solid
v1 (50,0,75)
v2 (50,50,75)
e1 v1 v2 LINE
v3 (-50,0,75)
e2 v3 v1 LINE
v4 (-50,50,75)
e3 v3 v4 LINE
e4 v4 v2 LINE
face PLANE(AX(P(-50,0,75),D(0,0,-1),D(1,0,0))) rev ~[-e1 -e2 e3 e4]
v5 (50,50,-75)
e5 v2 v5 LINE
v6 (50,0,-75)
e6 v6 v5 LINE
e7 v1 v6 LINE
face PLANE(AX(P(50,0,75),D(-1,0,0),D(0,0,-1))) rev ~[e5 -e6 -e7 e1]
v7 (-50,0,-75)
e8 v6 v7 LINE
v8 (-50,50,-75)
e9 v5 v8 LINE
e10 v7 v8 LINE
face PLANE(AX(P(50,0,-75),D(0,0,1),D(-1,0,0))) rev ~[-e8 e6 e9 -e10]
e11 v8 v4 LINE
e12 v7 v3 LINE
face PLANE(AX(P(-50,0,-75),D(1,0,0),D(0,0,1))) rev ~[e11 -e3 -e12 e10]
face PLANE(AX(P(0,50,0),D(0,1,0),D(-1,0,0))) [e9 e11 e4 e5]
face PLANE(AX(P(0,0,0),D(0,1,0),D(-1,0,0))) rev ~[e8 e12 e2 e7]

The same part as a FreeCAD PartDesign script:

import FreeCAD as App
import Part
import Sketcher

V = App.Vector
Q = App.Units.Quantity

doc = App.newDocument("Part")
body = doc.addObject("PartDesign::Body", "Body")

# Sketch on XZ plane
sketch1 = body.newObject("Sketcher::SketchObject", "Sketch")
sketch1.AttachmentSupport = (doc.getObject("XZ_Plane"), [""])
sketch1.MapMode = "FlatFace"
sketch1.addGeometry([
    Part.LineSegment(V(-50, -75, 0), V(-50, 75, 0)),
    Part.LineSegment(V(-50, 75, 0), V(50, 75, 0)),
    Part.LineSegment(V(50, 75, 0), V(50, -75, 0)),
    Part.LineSegment(V(50, -75, 0), V(-50, -75, 0)),
], False)
sketch1.addConstraint([
    Sketcher.Constraint("Coincident", 0, 2, 1, 1),
    Sketcher.Constraint("Coincident", 1, 2, 2, 1),
    Sketcher.Constraint("Coincident", 2, 2, 3, 1),
    Sketcher.Constraint("Coincident", 3, 2, 0, 1),
    Sketcher.Constraint("Vertical", 0),
    Sketcher.Constraint("Horizontal", 1),
    Sketcher.Constraint("Vertical", 2),
    Sketcher.Constraint("Horizontal", 3),
    Sketcher.Constraint("Symmetric", 0, 2, 2, 2, -1, 1),
    Sketcher.Constraint("DistanceX", 1, 1, 1, 2, Q("3.937 in")),
    Sketcher.Constraint("DistanceY", 0, 1, 0, 2, Q("5.9055 in")),
])
pad1 = body.newObject("PartDesign::Pad", "Pad")
pad1.Profile = sketch1
pad1.Length = Q("1.9685039 in")
pad1.Reversed = True

doc.recompute()
